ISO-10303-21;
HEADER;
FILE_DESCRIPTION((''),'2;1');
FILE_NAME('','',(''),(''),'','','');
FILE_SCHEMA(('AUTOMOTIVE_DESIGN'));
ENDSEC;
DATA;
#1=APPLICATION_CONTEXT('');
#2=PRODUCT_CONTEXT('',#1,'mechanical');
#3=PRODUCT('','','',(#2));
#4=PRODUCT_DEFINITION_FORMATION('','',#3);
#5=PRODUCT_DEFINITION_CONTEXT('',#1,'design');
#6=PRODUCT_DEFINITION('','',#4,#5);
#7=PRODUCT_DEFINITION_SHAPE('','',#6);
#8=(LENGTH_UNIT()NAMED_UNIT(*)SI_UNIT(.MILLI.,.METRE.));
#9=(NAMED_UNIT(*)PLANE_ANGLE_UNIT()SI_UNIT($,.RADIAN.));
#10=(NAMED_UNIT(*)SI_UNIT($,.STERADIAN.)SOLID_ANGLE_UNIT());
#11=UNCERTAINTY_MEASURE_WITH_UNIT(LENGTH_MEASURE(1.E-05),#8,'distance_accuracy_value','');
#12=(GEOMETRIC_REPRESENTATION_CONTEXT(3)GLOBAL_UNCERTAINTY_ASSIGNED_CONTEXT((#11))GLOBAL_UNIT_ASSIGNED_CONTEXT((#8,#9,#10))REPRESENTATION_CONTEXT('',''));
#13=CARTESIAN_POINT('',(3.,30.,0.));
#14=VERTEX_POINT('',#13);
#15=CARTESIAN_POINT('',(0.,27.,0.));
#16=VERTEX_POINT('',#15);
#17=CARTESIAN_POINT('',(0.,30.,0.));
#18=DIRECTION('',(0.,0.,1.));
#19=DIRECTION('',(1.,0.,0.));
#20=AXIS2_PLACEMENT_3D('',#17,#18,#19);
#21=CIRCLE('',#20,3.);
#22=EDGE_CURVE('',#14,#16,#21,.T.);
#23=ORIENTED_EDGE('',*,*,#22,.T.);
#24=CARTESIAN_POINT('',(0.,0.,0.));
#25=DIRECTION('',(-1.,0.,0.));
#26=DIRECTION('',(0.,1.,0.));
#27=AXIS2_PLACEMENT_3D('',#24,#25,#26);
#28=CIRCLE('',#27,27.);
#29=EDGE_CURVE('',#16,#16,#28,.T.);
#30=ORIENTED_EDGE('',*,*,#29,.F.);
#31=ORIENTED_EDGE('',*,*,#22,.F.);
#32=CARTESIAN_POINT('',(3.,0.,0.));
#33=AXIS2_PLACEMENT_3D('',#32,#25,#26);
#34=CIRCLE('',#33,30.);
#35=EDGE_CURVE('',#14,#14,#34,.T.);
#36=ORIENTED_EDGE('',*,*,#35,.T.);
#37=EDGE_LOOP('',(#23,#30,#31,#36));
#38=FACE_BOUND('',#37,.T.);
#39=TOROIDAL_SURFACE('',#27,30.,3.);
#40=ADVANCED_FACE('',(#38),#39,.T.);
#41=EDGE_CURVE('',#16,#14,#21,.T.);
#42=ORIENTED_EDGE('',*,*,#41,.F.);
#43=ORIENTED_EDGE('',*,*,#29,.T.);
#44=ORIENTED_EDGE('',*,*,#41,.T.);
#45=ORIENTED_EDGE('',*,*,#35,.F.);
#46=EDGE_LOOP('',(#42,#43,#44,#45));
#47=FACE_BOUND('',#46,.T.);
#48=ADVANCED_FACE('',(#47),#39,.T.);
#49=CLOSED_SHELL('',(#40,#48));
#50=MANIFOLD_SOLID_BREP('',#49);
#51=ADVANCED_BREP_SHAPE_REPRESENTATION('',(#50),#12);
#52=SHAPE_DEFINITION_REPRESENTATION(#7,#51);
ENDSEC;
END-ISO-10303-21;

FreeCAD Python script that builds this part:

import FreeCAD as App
import Part
import Sketcher

V = App.Vector
Q = App.Units.Quantity

doc = App.newDocument("Part")
body = doc.addObject("PartDesign::Body", "Body")

# Sketch on XY plane
sketch1 = body.newObject("Sketcher::SketchObject", "Sketch")
sketch1.AttachmentSupport = (doc.getObject("XY_Plane"), [""])
sketch1.MapMode = "FlatFace"
sketch1.addGeometry(Part.Circle(V(0, 30, 0), V(0, 0, 1), 3), False)
sketch1.addConstraint([
    Sketcher.Constraint("PointOnObject", 0, 3, -2),
    Sketcher.Constraint("Diameter", 0, Q("6 mm")),
    Sketcher.Constraint("DistanceY", -1, 1, 0, 3, Q("30 mm")),
])
revolution = body.newObject("PartDesign::Revolution", "Revolution")
revolution.Profile = sketch1
revolution.ReferenceAxis = (sketch1, ["H_Axis"])
revolution.Angle = 360

doc.recompute()
